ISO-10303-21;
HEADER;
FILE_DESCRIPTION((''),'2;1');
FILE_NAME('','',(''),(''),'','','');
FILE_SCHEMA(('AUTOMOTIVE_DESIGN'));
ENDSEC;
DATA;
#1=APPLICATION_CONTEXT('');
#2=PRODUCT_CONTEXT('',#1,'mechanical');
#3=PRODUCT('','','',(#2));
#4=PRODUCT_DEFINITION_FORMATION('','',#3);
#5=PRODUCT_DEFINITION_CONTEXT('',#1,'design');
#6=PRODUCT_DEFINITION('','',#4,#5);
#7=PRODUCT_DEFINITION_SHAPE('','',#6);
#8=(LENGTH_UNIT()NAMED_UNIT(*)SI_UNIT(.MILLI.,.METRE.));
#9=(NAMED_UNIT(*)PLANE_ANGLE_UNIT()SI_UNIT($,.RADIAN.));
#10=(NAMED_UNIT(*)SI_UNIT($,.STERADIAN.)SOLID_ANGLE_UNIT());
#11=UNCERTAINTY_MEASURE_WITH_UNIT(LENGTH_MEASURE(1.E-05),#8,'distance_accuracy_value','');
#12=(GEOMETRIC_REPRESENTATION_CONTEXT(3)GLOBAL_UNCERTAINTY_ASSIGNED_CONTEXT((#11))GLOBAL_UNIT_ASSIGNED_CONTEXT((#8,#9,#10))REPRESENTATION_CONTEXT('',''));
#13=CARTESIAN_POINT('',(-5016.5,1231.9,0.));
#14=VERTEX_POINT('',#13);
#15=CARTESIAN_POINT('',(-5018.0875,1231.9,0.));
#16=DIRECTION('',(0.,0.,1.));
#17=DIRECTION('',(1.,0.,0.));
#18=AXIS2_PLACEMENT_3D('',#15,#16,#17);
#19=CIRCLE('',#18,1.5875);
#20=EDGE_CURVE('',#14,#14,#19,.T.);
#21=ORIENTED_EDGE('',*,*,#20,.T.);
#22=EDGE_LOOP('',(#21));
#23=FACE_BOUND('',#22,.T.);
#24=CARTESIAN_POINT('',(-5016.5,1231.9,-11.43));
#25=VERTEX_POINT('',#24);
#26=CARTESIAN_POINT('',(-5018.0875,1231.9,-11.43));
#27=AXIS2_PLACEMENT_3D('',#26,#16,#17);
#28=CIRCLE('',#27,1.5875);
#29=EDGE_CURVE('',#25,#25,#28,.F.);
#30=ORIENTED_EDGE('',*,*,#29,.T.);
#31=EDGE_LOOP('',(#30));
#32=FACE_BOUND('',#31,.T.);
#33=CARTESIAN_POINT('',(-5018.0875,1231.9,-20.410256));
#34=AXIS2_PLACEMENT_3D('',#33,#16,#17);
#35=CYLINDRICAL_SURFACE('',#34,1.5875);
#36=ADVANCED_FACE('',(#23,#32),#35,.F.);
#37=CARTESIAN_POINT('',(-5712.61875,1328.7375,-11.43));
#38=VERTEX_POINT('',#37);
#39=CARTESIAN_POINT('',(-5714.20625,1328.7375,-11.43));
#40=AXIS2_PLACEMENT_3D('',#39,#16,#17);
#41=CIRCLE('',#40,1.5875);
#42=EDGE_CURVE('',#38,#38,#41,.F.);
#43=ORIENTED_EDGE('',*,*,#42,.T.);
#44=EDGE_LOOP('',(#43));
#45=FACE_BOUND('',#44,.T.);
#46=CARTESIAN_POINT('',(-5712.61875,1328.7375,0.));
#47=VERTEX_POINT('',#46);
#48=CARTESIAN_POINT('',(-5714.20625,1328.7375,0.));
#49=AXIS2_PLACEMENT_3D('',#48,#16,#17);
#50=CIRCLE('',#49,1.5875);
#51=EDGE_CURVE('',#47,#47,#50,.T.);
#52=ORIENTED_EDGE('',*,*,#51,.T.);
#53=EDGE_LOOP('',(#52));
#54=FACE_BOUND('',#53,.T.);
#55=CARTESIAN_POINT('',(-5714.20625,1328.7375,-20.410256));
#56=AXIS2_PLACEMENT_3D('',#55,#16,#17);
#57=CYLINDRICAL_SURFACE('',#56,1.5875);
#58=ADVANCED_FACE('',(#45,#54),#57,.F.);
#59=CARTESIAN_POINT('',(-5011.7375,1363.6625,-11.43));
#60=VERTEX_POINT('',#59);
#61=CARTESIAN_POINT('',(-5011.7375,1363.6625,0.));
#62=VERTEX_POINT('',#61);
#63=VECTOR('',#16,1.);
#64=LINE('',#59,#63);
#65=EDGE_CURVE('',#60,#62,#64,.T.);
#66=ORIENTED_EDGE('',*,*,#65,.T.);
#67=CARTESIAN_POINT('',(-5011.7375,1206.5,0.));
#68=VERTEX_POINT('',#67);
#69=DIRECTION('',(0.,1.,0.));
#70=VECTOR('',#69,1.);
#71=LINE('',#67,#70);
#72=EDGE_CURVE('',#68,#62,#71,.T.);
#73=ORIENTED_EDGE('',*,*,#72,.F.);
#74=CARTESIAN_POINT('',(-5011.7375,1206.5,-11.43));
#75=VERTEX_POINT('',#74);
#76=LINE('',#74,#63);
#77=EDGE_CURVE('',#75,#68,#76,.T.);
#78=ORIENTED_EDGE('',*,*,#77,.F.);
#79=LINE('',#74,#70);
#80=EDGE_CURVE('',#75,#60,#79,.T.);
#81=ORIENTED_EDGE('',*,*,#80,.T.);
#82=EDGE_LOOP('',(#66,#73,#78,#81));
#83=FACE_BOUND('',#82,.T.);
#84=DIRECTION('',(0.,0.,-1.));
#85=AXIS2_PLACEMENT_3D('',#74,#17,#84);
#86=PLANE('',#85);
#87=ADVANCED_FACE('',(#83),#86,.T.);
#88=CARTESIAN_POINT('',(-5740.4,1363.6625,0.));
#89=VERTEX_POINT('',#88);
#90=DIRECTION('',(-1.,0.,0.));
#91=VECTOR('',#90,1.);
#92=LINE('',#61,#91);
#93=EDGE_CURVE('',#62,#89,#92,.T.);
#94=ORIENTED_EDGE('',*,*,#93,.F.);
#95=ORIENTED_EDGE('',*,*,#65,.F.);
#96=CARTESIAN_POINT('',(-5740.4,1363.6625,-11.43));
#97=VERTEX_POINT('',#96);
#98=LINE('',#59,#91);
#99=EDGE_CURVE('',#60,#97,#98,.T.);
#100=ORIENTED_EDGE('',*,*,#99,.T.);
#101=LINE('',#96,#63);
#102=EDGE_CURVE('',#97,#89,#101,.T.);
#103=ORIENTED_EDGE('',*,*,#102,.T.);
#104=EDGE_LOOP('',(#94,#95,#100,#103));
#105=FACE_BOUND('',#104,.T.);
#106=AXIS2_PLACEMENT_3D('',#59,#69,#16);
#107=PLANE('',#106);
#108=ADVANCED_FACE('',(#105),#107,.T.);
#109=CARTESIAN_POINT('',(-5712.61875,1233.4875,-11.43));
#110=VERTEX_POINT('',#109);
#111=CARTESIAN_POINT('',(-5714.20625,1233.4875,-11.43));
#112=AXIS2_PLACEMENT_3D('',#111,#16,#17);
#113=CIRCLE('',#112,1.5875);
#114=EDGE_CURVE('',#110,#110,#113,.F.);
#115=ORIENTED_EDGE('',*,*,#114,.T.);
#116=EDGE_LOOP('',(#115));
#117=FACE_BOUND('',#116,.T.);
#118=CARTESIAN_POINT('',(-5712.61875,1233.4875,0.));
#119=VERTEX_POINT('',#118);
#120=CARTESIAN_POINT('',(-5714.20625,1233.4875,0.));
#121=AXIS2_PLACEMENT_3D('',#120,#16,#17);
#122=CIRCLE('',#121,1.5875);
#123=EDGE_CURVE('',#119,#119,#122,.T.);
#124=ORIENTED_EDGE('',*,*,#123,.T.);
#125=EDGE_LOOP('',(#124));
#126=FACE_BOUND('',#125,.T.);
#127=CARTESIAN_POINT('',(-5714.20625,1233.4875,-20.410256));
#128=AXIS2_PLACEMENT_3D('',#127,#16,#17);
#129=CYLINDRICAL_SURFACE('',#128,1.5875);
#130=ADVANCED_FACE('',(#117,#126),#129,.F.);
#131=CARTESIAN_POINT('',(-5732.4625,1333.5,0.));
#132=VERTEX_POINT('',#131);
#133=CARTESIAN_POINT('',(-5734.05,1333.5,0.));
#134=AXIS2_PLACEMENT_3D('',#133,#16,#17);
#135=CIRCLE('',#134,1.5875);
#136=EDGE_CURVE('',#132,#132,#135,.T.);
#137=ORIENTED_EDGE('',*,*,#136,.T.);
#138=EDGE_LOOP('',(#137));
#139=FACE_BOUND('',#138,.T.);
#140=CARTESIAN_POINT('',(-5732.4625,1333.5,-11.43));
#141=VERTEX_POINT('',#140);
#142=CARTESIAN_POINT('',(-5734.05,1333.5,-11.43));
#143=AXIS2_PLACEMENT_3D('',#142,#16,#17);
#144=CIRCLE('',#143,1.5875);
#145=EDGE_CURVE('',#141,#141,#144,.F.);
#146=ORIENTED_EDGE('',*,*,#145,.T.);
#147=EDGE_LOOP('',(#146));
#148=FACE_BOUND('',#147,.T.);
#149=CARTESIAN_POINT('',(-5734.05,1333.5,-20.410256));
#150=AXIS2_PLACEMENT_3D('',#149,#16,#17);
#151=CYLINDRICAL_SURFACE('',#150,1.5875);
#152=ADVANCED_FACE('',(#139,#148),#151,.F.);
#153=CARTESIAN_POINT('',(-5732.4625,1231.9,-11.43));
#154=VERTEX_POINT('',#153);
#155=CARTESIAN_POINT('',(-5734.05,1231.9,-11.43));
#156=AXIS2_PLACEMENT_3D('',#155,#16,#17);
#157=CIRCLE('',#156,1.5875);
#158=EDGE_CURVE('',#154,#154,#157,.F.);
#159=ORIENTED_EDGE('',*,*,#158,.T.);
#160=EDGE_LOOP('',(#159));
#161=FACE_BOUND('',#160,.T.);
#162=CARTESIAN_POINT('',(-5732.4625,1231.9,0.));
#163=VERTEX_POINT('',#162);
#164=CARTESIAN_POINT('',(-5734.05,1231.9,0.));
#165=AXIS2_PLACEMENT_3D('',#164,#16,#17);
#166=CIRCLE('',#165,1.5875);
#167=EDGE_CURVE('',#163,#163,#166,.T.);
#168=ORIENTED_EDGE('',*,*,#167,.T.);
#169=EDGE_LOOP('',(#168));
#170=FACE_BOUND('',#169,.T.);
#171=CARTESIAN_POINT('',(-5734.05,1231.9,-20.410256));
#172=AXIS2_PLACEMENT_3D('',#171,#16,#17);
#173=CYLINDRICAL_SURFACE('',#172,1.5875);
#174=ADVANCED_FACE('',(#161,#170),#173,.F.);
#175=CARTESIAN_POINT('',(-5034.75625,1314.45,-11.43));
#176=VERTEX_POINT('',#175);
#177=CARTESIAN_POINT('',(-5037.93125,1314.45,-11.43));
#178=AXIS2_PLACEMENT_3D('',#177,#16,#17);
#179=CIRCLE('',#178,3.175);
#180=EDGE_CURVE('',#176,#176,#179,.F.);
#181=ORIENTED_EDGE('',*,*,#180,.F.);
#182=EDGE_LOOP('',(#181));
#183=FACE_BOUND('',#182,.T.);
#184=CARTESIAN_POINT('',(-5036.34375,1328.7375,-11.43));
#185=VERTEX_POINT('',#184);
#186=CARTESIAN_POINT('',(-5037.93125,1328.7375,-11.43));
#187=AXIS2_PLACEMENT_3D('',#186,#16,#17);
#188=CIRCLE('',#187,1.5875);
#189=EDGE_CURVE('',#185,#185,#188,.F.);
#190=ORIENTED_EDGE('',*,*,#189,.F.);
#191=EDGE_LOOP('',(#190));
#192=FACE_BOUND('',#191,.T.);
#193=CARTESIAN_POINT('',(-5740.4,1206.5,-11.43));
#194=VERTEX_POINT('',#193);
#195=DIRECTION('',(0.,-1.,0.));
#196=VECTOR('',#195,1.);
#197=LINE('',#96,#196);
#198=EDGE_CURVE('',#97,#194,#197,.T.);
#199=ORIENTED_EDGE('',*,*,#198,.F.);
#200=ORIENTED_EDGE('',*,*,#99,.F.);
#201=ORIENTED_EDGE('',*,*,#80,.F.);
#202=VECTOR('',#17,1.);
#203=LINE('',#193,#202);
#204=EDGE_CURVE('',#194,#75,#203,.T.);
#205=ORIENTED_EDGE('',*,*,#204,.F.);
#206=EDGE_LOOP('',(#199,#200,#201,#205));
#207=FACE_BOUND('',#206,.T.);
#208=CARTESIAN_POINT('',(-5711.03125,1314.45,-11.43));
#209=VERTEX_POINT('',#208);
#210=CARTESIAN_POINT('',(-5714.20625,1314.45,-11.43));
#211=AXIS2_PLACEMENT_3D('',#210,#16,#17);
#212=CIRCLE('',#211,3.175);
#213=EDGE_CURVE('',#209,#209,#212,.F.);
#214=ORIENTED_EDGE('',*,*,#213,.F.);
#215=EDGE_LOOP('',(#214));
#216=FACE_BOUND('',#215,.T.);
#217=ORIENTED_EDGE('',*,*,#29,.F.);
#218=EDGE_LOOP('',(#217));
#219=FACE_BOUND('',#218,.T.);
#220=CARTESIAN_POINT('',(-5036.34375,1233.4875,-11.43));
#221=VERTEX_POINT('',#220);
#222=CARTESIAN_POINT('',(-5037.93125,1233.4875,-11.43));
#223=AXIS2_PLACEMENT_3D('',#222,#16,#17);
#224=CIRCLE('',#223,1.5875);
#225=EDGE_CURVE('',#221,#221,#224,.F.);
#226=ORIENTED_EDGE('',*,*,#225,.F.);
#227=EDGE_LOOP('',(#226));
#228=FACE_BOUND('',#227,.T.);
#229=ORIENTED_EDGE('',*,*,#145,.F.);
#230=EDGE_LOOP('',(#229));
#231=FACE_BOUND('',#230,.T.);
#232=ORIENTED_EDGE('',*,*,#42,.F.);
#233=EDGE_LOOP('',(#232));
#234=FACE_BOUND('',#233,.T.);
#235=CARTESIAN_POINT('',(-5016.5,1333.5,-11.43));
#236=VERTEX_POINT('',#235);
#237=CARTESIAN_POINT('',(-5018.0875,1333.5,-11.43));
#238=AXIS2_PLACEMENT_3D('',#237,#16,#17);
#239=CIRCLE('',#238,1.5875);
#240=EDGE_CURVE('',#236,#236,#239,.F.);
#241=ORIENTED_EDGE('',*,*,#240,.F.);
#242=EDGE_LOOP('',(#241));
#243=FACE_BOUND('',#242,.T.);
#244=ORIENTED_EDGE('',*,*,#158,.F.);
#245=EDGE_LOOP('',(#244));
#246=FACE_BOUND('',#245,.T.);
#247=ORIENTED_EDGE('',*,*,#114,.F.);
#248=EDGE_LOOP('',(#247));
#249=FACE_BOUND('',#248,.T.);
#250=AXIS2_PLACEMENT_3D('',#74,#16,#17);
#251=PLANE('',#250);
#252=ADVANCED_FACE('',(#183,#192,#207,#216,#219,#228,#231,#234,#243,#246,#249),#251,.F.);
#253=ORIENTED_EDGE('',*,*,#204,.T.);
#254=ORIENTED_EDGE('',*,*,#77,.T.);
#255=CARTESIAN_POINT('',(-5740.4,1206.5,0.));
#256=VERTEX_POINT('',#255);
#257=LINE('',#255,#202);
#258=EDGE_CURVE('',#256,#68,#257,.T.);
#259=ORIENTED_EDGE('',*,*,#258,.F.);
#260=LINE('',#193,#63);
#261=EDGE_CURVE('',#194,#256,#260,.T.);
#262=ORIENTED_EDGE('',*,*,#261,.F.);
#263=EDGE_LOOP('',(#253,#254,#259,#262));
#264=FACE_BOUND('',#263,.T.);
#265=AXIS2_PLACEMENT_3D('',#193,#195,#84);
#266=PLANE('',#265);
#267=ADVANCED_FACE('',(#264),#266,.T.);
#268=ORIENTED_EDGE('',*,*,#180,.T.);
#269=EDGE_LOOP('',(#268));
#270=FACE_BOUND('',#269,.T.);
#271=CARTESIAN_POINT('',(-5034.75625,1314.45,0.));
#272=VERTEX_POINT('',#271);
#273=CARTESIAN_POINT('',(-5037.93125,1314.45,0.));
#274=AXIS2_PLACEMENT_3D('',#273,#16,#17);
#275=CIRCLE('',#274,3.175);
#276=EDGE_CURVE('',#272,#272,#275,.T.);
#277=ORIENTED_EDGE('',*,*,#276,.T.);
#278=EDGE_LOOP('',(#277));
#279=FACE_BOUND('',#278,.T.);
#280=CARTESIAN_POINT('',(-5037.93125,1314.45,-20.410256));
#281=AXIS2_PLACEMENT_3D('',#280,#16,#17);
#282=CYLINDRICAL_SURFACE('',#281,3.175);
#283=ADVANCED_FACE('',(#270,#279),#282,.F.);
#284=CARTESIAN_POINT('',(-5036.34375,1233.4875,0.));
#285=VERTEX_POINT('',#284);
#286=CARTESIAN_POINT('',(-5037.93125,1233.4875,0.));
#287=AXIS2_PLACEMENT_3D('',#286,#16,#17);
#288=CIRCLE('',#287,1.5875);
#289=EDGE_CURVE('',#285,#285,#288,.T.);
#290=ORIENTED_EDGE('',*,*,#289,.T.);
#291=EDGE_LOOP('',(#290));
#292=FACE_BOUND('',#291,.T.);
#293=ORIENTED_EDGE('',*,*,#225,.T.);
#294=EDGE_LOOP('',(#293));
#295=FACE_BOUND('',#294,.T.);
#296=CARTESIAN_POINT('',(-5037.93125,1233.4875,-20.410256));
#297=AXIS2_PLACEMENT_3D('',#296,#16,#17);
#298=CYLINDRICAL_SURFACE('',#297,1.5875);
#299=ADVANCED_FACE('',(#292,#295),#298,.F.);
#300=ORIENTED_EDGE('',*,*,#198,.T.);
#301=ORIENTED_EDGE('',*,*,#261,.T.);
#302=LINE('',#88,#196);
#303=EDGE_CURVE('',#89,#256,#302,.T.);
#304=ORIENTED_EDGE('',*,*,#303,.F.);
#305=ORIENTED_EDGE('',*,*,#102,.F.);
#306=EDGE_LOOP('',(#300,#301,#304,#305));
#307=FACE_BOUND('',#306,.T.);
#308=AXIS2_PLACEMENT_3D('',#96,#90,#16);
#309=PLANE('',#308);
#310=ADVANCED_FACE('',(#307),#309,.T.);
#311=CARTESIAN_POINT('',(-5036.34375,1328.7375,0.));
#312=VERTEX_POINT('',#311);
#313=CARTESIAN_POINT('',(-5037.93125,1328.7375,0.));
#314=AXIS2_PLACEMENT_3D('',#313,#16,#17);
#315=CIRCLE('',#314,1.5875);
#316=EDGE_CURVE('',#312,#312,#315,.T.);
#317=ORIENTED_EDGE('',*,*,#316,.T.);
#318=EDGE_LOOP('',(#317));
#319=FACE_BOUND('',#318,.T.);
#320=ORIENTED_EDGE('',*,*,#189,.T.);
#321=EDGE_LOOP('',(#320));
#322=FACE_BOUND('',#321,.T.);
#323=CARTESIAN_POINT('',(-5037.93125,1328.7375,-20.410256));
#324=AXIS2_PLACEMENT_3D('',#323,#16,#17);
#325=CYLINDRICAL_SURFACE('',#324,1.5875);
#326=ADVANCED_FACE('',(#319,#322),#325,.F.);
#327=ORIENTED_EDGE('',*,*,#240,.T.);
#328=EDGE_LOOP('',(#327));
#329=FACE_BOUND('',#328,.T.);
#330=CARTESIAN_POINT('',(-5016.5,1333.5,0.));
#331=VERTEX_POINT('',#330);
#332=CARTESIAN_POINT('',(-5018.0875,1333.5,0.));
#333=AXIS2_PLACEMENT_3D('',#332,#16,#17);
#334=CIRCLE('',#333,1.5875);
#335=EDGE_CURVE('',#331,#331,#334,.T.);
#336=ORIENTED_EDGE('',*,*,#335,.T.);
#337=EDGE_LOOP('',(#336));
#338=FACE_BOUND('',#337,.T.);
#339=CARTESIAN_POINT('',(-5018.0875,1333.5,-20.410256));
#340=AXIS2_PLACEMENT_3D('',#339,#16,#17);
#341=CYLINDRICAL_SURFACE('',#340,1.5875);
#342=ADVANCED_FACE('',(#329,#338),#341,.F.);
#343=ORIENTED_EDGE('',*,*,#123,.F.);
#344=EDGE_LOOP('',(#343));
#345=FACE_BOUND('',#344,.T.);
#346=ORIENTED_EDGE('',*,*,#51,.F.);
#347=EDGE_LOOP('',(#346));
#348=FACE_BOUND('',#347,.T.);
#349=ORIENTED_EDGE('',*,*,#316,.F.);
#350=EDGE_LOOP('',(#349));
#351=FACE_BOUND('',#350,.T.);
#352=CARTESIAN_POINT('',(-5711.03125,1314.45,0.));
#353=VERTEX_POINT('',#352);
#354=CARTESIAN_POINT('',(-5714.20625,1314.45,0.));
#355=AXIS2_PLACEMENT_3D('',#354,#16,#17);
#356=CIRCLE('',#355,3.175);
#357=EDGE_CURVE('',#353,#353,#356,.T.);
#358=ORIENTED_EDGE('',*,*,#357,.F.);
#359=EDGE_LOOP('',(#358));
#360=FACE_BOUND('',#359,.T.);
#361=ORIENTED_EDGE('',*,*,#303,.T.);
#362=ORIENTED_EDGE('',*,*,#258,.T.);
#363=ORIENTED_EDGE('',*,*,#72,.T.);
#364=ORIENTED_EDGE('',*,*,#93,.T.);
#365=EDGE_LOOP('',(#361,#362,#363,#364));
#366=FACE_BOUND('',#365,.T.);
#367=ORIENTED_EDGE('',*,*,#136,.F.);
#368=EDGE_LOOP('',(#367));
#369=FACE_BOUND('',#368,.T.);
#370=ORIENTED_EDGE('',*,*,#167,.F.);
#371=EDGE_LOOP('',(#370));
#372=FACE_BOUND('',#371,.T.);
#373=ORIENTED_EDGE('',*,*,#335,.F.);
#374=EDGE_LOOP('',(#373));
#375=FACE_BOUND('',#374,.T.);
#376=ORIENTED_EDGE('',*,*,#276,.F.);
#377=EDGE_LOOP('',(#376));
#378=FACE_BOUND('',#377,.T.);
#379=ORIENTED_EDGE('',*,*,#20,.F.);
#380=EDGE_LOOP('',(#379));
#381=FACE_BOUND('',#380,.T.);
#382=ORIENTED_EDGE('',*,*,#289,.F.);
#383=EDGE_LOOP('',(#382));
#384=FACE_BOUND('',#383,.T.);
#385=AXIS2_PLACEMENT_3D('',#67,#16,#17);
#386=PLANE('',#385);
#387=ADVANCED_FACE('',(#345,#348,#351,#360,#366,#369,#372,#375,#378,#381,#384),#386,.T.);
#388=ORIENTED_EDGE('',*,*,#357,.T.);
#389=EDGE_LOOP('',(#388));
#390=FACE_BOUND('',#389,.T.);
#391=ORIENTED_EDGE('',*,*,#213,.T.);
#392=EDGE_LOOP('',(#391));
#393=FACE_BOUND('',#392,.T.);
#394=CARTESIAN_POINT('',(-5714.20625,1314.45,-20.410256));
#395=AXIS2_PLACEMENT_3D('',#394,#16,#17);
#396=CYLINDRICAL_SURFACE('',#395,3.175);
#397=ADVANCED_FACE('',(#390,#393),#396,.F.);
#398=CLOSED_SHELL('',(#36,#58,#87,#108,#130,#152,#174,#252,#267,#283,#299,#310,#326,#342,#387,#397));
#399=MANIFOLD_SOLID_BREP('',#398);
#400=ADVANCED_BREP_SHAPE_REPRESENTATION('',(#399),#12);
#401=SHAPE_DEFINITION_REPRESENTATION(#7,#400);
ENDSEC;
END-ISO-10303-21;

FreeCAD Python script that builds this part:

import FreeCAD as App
import Part
import Sketcher
Q = App.Units.Quantity

doc = App.newDocument("Part")
body = doc.addObject("PartDesign::Body", "Body")

# Sketch on XY plane
sketch1 = body.newObject("Sketcher::SketchObject", "Sketch")
sketch1.AttachmentSupport = (doc.getObject("XY_Plane"), [""])
sketch1.MapMode = "FlatFace"
sketch1.addGeometry([
    Part.LineSegment(App.Vector(-5740, 1364, 0), App.Vector(-5740, 1206, 0)),
    Part.LineSegment(App.Vector(-5740, 1206, 0), App.Vector(-5012, 1206, 0)),
    Part.LineSegment(App.Vector(-5012, 1206, 0), App.Vector(-5012, 1364, 0)),
    Part.LineSegment(App.Vector(-5012, 1364, 0), App.Vector(-5740, 1364, 0)),
], False)
sketch1.addConstraint([
    Sketcher.Constraint("Coincident", 0, 2, 1, 1),
    Sketcher.Constraint("Coincident", 1, 2, 2, 1),
    Sketcher.Constraint("Coincident", 2, 2, 3, 1),
    Sketcher.Constraint("Coincident", 3, 2, 0, 1),
    Sketcher.Constraint("Vertical", 0),
    Sketcher.Constraint("Horizontal", 1),
    Sketcher.Constraint("Vertical", 2),
    Sketcher.Constraint("Horizontal", 3),
    Sketcher.Constraint("DistanceX", 0, 2, -1, 1, Q("226 in")),
    Sketcher.Constraint("DistanceY", -1, 1, 0, 2, Q("47.5 in")),
    Sketcher.Constraint("DistanceX", 1, 1, 1, 2, Q("28.6875 in")),
    Sketcher.Constraint("DistanceY", 0, 2, 0, 1, Q("6.1875 in")),
])
pad1 = body.newObject("PartDesign::Pad", "Pad")
pad1.Profile = sketch1
pad1.Length = Q("0.45 in")
pad1.Reversed = True

# Sketch on XY plane
sketch2 = body.newObject("Sketcher::SketchObject", "Sketch001")
sketch2.AttachmentSupport = (doc.getObject("XY_Plane"), [""])
sketch2.MapMode = "FlatFace"
sketch2.addGeometry([
    Part.Circle(App.Vector(-5714.2, 1314.5, 0), App.Vector(0, 0, 1), 3.2),  # 0
    Part.Circle(App.Vector(-5714.2, 1328.7, 0), App.Vector(0, 0, 1), 1.6),  # 1
    Part.Circle(App.Vector(-5734.1, 1333.5, 0), App.Vector(0, 0, 1), 1.6),  # 2
    Part.Circle(App.Vector(-5734.1, 1231.9, 0), App.Vector(0, 0, 1), 1.6),  # 3
    Part.Circle(App.Vector(-5714.2, 1233.5, 0), App.Vector(0, 0, 1), 1.6),  # 4
    Part.Circle(App.Vector(-5037.9, 1314.5, 0), App.Vector(0, 0, 1), 3.2),  # 5
    Part.Circle(App.Vector(-5037.9, 1328.7, 0), App.Vector(0, 0, 1), 1.6),  # 6
    Part.Circle(App.Vector(-5018.1, 1333.5, 0), App.Vector(0, 0, 1), 1.6),  # 7
    Part.Circle(App.Vector(-5037.9, 1233.5, 0), App.Vector(0, 0, 1), 1.6),  # 8
    Part.Circle(App.Vector(-5018.1, 1231.9, 0), App.Vector(0, 0, 1), 1.6),  # 9
], False)
sketch2.addConstraint([
    Sketcher.Constraint("Equal", 1, 2),
    Sketcher.Constraint("Equal", 2, 3),
    Sketcher.Constraint("Equal", 3, 4),
    Sketcher.Constraint("Equal", 0, 5),
    Sketcher.Constraint("Equal", 4, 6),
    Sketcher.Constraint("Equal", 6, 7),
    Sketcher.Constraint("Equal", 7, 8),
    Sketcher.Constraint("Equal", 8, 9),
    Sketcher.Constraint("Horizontal", 0, 3, 5, 3),
    Sketcher.Constraint("Horizontal", 1, 3, 6, 3),
    Sketcher.Constraint("Horizontal", 2, 3, 7, 3),
    Sketcher.Constraint("Horizontal", 4, 3, 8, 3),
    Sketcher.Constraint("Horizontal", 3, 3, 9, 3),
    Sketcher.Constraint("Vertical", 0, 3, 1, 3),
    Sketcher.Constraint("Vertical", 2, 3, 3, 3),
    Sketcher.Constraint("Vertical", 1, 3, 4, 3),
    Sketcher.Constraint("Vertical", 5, 3, 6, 3),
    Sketcher.Constraint("Vertical", 6, 3, 8, 3),
    Sketcher.Constraint("Vertical", 7, 3, 9, 3),
    Sketcher.Constraint("Diameter", 0, Q("0.25 in")),
    Sketcher.Constraint("Diameter", 1, Q("0.125 in")),
    Sketcher.Constraint("DistanceY", 3, 3, 2, 3, Q("4 in")),
    Sketcher.Constraint("DistanceY", -1, 1, 2, 3, Q("52.5 in")),
    Sketcher.Constraint("DistanceY", -1, 1, 0, 3, Q("51.75 in")),
    Sketcher.Constraint("DistanceX", 2, 3, -1, 1, Q("225.75 in")),
    Sketcher.Constraint("DistanceY", 4, 3, 1, 3, Q("3.75 in")),
    Sketcher.Constraint("DistanceX", 0, 3, -1, 1, Q("224.96875 in")),
    Sketcher.Constraint("DistanceY", -1, 1, 1, 3, Q("52.3125 in")),
    Sketcher.Constraint("DistanceX", 5, 3, -1, 1, Q("198.34375 in")),
    Sketcher.Constraint("DistanceX", 7, 3, -1, 1, Q("197.5625 in")),
])
pocket1 = body.newObject("PartDesign::Pocket", "Pocket")
pocket1.Profile = sketch2
pocket1.Length = Q("0.45 in")

doc.recompute()
